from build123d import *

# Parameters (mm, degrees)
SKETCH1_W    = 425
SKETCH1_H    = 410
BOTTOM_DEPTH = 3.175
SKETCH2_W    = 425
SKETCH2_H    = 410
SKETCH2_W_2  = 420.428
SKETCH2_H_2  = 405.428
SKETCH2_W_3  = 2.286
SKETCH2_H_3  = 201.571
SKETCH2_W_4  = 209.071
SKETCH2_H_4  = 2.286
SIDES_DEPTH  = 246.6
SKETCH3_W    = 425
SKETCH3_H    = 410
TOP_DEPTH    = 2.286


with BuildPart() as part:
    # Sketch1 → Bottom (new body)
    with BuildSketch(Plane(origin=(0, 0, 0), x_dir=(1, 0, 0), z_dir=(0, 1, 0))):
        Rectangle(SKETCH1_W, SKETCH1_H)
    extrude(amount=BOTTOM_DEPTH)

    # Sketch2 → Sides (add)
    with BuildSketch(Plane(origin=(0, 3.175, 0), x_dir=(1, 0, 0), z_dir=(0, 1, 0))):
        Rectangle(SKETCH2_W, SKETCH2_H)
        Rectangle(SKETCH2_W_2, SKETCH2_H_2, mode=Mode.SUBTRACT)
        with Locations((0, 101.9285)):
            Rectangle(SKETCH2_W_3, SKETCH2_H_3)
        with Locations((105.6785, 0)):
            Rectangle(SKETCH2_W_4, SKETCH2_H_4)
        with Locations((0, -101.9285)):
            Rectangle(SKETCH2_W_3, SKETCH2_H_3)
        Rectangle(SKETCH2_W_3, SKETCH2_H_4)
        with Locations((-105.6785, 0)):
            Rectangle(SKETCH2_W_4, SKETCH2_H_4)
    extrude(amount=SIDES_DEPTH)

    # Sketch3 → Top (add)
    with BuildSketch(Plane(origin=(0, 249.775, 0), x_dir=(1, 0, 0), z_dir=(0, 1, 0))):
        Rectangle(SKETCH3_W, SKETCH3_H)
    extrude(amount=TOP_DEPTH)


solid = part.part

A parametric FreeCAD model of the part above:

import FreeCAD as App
import Part
import Sketcher
from FreeCAD import Vector

doc = App.newDocument("Part")
params = doc.addObject("Spreadsheet::Sheet", "Params")
for row, (alias, value) in enumerate([
    ("sketch1_width", "425 mm"),
    ("sketch1_height", "410 mm"),
    ("pad1_length", "3.175 mm"),
    ("sketch2_width", "425 mm"),
    ("sketch2_height", "410 mm"),
    ("pad2_length", "246.6 mm"),
    ("sketch3_width", "425 mm"),
    ("sketch3_height", "410 mm"),
    ("pad3_length", "2.286 mm"),
], start=1):
    params.set(f"A{row}", alias)
    params.set(f"B{row}", "=" + value)
    params.setAlias(f"B{row}", alias)

body = doc.addObject("PartDesign::Body", "Body")

# Sketch on XZ plane
sketch1 = doc.addObject("Sketcher::SketchObject", "Sketch")
body.addObject(sketch1)
sketch1.AttachmentSupport = (doc.XZ_Plane, [""])
sketch1.MapMode = "FlatFace"
sketch1.addGeometry([
    Part.LineSegment(Vector(-212.5, -205, 0), Vector(-212.5, 205, 0)),
    Part.LineSegment(Vector(-212.5, 205, 0), Vector(212.5, 205, 0)),
    Part.LineSegment(Vector(212.5, 205, 0), Vector(212.5, -205, 0)),
    Part.LineSegment(Vector(212.5, -205, 0), Vector(-212.5, -205, 0)),
], False)
sketch1.addConstraint([
    Sketcher.Constraint("Coincident", 0, 2, 1, 1),
    Sketcher.Constraint("Coincident", 1, 2, 2, 1),
    Sketcher.Constraint("Coincident", 2, 2, 3, 1),
    Sketcher.Constraint("Coincident", 3, 2, 0, 1),
    Sketcher.Constraint("Vertical", 0),
    Sketcher.Constraint("Horizontal", 1),
    Sketcher.Constraint("Vertical", 2),
    Sketcher.Constraint("Horizontal", 3),
    Sketcher.Constraint("Symmetric", 0, 2, 2, 2, -1, 1),
    Sketcher.Constraint("DistanceX", 1, 1, 1, 2, 425.0),
    Sketcher.Constraint("DistanceY", 0, 1, 0, 2, 410.0),
])
sketch1.setExpression("Constraints[9]", "Params.sketch1_width")
sketch1.setExpression("Constraints[10]", "Params.sketch1_height")
pad1 = doc.addObject("PartDesign::Pad", "Pad")
body.addObject(pad1)
pad1.Profile = sketch1
pad1.setExpression("Length", "Params.pad1_length")
pad1.Reversed = True

# Sketch on XZ plane
sketch2 = doc.addObject("Sketcher::SketchObject", "Sketch001")
body.addObject(sketch2)
sketch2.AttachmentSupport = (doc.XZ_Plane, [""])
sketch2.MapMode = "FlatFace"
sketch2.AttachmentOffset = App.Placement(Vector(0, 0, -3.175), App.Rotation())
sketch2.addGeometry([
    Part.LineSegment(Vector(-212.5, -205, 0), Vector(-212.5, 205, 0)),  # 0
    Part.LineSegment(Vector(-212.5, 205, 0), Vector(212.5, 205, 0)),  # 1
    Part.LineSegment(Vector(212.5, 205, 0), Vector(212.5, -205, 0)),  # 2
    Part.LineSegment(Vector(212.5, -205, 0), Vector(-212.5, -205, 0)),  # 3
    Part.LineSegment(Vector(-1.143, -202.714, 0), Vector(-1.143, -1.143, 0)),  # 4
    Part.LineSegment(Vector(-1.143, -1.143, 0), Vector(-210.214, -1.143, 0)),  # 5
    Part.LineSegment(Vector(-210.214, -1.143, 0), Vector(-210.214, -202.714, 0)),  # 6
    Part.LineSegment(Vector(-210.214, -202.714, 0), Vector(-1.143, -202.714, 0)),  # 7
    Part.LineSegment(Vector(-1.143, 1.143, 0), Vector(-1.143, 202.714, 0)),  # 8
    Part.LineSegment(Vector(-1.143, 202.714, 0), Vector(-210.214, 202.714, 0)),  # 9
    Part.LineSegment(Vector(-210.214, 202.714, 0), Vector(-210.214, 1.143, 0)),  # 10
    Part.LineSegment(Vector(-210.214, 1.143, 0), Vector(-1.143, 1.143, 0)),  # 11
    Part.LineSegment(Vector(1.143, 202.714, 0), Vector(1.143, 1.143, 0)),  # 12
    Part.LineSegment(Vector(1.143, 1.143, 0), Vector(210.214, 1.143, 0)),  # 13
    Part.LineSegment(Vector(210.214, 1.143, 0), Vector(210.214, 202.714, 0)),  # 14
    Part.LineSegment(Vector(210.214, 202.714, 0), Vector(1.143, 202.714, 0)),  # 15
    Part.LineSegment(Vector(210.214, -1.143, 0), Vector(1.143, -1.143, 0)),  # 16
    Part.LineSegment(Vector(1.143, -1.143, 0), Vector(1.143, -202.714, 0)),  # 17
    Part.LineSegment(Vector(1.143, -202.714, 0), Vector(210.214, -202.714, 0)),  # 18
    Part.LineSegment(Vector(210.214, -202.714, 0), Vector(210.214, -1.143, 0)),  # 19
], False)
sketch2.addConstraint([
    Sketcher.Constraint("Coincident", 0, 2, 1, 1),
    Sketcher.Constraint("Coincident", 1, 2, 2, 1),
    Sketcher.Constraint("Coincident", 2, 2, 3, 1),
    Sketcher.Constraint("Coincident", 3, 2, 0, 1),
    Sketcher.Constraint("Coincident", 4, 2, 5, 1),
    Sketcher.Constraint("Coincident", 5, 2, 6, 1),
    Sketcher.Constraint("Coincident", 6, 2, 7, 1),
    Sketcher.Constraint("Coincident", 7, 2, 4, 1),
    Sketcher.Constraint("Coincident", 8, 2, 9, 1),
    Sketcher.Constraint("Coincident", 9, 2, 10, 1),
    Sketcher.Constraint("Coincident", 10, 2, 11, 1),
    Sketcher.Constraint("Coincident", 11, 2, 8, 1),
    Sketcher.Constraint("Coincident", 12, 2, 13, 1),
    Sketcher.Constraint("Coincident", 13, 2, 14, 1),
    Sketcher.Constraint("Coincident", 14, 2, 15, 1),
    Sketcher.Constraint("Coincident", 15, 2, 12, 1),
    Sketcher.Constraint("Coincident", 16, 2, 17, 1),
    Sketcher.Constraint("Coincident", 17, 2, 18, 1),
    Sketcher.Constraint("Coincident", 18, 2, 19, 1),
    Sketcher.Constraint("Coincident", 19, 2, 16, 1),
    Sketcher.Constraint("Vertical", 0),
    Sketcher.Constraint("Horizontal", 1),
    Sketcher.Constraint("Vertical", 2),
    Sketcher.Constraint("Horizontal", 3),
    Sketcher.Constraint("Vertical", 4),
    Sketcher.Constraint("Horizontal", 5),
    Sketcher.Constraint("Vertical", 6),
    Sketcher.Constraint("Horizontal", 7),
    Sketcher.Constraint("Vertical", 8),
    Sketcher.Constraint("Horizontal", 9),
    Sketcher.Constraint("Vertical", 10),
    Sketcher.Constraint("Horizontal", 11),
    Sketcher.Constraint("Vertical", 12),
    Sketcher.Constraint("Horizontal", 13),
    Sketcher.Constraint("Vertical", 14),
    Sketcher.Constraint("Horizontal", 15),
    Sketcher.Constraint("Horizontal", 16),
    Sketcher.Constraint("Vertical", 17),
    Sketcher.Constraint("Horizontal", 18),
    Sketcher.Constraint("Vertical", 19),
    Sketcher.Constraint("Symmetric", 0, 2, 2, 2, -1, 1),
    Sketcher.Constraint("Symmetric", 4, 2, 12, 2, -1, 1),
    Sketcher.Constraint("Symmetric", 6, 2, 14, 2, -1, 1),
    Sketcher.Constraint("Symmetric", 11, 2, 16, 2, -1, 1),
    Sketcher.Constraint("Symmetric", 9, 2, 18, 2, -1, 1),
    Sketcher.Constraint("Symmetric", 11, 2, 12, 2, -2),
    Sketcher.Constraint("Symmetric", 9, 2, 14, 2, -2),
    Sketcher.Constraint("DistanceX", 1, 1, 1, 2, 425.0),
    Sketcher.Constraint("DistanceY", 0, 1, 0, 2, 410.0),
    Sketcher.Constraint("DistanceX", 5, 2, 5, 1, 209.071),
    Sketcher.Constraint("DistanceY", 4, 1, 4, 2, 201.571),
    Sketcher.Constraint("DistanceX", 4, 2, -1, 1, 1.143),
    Sketcher.Constraint("DistanceY", 4, 2, -1, 1, 1.143),
])
sketch2.setExpression("Constraints[47]", "Params.sketch2_width")
sketch2.setExpression("Constraints[48]", "Params.sketch2_height")
pad2 = doc.addObject("PartDesign::Pad", "Pad001")
body.addObject(pad2)
pad2.Profile = sketch2
pad2.setExpression("Length", "Params.pad2_length")
pad2.Reversed = True

# Sketch on XZ plane
sketch3 = doc.addObject("Sketcher::SketchObject", "Sketch002")
body.addObject(sketch3)
sketch3.AttachmentSupport = (doc.XZ_Plane, [""])
sketch3.MapMode = "FlatFace"
sketch3.AttachmentOffset = App.Placement(Vector(0, 0, -249.775), App.Rotation())
sketch3.addGeometry([
    Part.LineSegment(Vector(-212.5, -205, 0), Vector(-212.5, 205, 0)),
    Part.LineSegment(Vector(-212.5, 205, 0), Vector(212.5, 205, 0)),
    Part.LineSegment(Vector(212.5, 205, 0), Vector(212.5, -205, 0)),
    Part.LineSegment(Vector(212.5, -205, 0), Vector(-212.5, -205, 0)),
], False)
sketch3.addConstraint([
    Sketcher.Constraint("Coincident", 0, 2, 1, 1),
    Sketcher.Constraint("Coincident", 1, 2, 2, 1),
    Sketcher.Constraint("Coincident", 2, 2, 3, 1),
    Sketcher.Constraint("Coincident", 3, 2, 0, 1),
    Sketcher.Constraint("Vertical", 0),
    Sketcher.Constraint("Horizontal", 1),
    Sketcher.Constraint("Vertical", 2),
    Sketcher.Constraint("Horizontal", 3),
    Sketcher.Constraint("Symmetric", 0, 2, 2, 2, -1, 1),
    Sketcher.Constraint("DistanceX", 1, 1, 1, 2, 425.0),
    Sketcher.Constraint("DistanceY", 0, 1, 0, 2, 410.0),
])
sketch3.setExpression("Constraints[9]", "Params.sketch3_width")
sketch3.setExpression("Constraints[10]", "Params.sketch3_height")
pad3 = doc.addObject("PartDesign::Pad", "Pad002")
body.addObject(pad3)
pad3.Profile = sketch3
pad3.setExpression("Length", "Params.pad3_length")
pad3.Reversed = True

doc.recompute()
